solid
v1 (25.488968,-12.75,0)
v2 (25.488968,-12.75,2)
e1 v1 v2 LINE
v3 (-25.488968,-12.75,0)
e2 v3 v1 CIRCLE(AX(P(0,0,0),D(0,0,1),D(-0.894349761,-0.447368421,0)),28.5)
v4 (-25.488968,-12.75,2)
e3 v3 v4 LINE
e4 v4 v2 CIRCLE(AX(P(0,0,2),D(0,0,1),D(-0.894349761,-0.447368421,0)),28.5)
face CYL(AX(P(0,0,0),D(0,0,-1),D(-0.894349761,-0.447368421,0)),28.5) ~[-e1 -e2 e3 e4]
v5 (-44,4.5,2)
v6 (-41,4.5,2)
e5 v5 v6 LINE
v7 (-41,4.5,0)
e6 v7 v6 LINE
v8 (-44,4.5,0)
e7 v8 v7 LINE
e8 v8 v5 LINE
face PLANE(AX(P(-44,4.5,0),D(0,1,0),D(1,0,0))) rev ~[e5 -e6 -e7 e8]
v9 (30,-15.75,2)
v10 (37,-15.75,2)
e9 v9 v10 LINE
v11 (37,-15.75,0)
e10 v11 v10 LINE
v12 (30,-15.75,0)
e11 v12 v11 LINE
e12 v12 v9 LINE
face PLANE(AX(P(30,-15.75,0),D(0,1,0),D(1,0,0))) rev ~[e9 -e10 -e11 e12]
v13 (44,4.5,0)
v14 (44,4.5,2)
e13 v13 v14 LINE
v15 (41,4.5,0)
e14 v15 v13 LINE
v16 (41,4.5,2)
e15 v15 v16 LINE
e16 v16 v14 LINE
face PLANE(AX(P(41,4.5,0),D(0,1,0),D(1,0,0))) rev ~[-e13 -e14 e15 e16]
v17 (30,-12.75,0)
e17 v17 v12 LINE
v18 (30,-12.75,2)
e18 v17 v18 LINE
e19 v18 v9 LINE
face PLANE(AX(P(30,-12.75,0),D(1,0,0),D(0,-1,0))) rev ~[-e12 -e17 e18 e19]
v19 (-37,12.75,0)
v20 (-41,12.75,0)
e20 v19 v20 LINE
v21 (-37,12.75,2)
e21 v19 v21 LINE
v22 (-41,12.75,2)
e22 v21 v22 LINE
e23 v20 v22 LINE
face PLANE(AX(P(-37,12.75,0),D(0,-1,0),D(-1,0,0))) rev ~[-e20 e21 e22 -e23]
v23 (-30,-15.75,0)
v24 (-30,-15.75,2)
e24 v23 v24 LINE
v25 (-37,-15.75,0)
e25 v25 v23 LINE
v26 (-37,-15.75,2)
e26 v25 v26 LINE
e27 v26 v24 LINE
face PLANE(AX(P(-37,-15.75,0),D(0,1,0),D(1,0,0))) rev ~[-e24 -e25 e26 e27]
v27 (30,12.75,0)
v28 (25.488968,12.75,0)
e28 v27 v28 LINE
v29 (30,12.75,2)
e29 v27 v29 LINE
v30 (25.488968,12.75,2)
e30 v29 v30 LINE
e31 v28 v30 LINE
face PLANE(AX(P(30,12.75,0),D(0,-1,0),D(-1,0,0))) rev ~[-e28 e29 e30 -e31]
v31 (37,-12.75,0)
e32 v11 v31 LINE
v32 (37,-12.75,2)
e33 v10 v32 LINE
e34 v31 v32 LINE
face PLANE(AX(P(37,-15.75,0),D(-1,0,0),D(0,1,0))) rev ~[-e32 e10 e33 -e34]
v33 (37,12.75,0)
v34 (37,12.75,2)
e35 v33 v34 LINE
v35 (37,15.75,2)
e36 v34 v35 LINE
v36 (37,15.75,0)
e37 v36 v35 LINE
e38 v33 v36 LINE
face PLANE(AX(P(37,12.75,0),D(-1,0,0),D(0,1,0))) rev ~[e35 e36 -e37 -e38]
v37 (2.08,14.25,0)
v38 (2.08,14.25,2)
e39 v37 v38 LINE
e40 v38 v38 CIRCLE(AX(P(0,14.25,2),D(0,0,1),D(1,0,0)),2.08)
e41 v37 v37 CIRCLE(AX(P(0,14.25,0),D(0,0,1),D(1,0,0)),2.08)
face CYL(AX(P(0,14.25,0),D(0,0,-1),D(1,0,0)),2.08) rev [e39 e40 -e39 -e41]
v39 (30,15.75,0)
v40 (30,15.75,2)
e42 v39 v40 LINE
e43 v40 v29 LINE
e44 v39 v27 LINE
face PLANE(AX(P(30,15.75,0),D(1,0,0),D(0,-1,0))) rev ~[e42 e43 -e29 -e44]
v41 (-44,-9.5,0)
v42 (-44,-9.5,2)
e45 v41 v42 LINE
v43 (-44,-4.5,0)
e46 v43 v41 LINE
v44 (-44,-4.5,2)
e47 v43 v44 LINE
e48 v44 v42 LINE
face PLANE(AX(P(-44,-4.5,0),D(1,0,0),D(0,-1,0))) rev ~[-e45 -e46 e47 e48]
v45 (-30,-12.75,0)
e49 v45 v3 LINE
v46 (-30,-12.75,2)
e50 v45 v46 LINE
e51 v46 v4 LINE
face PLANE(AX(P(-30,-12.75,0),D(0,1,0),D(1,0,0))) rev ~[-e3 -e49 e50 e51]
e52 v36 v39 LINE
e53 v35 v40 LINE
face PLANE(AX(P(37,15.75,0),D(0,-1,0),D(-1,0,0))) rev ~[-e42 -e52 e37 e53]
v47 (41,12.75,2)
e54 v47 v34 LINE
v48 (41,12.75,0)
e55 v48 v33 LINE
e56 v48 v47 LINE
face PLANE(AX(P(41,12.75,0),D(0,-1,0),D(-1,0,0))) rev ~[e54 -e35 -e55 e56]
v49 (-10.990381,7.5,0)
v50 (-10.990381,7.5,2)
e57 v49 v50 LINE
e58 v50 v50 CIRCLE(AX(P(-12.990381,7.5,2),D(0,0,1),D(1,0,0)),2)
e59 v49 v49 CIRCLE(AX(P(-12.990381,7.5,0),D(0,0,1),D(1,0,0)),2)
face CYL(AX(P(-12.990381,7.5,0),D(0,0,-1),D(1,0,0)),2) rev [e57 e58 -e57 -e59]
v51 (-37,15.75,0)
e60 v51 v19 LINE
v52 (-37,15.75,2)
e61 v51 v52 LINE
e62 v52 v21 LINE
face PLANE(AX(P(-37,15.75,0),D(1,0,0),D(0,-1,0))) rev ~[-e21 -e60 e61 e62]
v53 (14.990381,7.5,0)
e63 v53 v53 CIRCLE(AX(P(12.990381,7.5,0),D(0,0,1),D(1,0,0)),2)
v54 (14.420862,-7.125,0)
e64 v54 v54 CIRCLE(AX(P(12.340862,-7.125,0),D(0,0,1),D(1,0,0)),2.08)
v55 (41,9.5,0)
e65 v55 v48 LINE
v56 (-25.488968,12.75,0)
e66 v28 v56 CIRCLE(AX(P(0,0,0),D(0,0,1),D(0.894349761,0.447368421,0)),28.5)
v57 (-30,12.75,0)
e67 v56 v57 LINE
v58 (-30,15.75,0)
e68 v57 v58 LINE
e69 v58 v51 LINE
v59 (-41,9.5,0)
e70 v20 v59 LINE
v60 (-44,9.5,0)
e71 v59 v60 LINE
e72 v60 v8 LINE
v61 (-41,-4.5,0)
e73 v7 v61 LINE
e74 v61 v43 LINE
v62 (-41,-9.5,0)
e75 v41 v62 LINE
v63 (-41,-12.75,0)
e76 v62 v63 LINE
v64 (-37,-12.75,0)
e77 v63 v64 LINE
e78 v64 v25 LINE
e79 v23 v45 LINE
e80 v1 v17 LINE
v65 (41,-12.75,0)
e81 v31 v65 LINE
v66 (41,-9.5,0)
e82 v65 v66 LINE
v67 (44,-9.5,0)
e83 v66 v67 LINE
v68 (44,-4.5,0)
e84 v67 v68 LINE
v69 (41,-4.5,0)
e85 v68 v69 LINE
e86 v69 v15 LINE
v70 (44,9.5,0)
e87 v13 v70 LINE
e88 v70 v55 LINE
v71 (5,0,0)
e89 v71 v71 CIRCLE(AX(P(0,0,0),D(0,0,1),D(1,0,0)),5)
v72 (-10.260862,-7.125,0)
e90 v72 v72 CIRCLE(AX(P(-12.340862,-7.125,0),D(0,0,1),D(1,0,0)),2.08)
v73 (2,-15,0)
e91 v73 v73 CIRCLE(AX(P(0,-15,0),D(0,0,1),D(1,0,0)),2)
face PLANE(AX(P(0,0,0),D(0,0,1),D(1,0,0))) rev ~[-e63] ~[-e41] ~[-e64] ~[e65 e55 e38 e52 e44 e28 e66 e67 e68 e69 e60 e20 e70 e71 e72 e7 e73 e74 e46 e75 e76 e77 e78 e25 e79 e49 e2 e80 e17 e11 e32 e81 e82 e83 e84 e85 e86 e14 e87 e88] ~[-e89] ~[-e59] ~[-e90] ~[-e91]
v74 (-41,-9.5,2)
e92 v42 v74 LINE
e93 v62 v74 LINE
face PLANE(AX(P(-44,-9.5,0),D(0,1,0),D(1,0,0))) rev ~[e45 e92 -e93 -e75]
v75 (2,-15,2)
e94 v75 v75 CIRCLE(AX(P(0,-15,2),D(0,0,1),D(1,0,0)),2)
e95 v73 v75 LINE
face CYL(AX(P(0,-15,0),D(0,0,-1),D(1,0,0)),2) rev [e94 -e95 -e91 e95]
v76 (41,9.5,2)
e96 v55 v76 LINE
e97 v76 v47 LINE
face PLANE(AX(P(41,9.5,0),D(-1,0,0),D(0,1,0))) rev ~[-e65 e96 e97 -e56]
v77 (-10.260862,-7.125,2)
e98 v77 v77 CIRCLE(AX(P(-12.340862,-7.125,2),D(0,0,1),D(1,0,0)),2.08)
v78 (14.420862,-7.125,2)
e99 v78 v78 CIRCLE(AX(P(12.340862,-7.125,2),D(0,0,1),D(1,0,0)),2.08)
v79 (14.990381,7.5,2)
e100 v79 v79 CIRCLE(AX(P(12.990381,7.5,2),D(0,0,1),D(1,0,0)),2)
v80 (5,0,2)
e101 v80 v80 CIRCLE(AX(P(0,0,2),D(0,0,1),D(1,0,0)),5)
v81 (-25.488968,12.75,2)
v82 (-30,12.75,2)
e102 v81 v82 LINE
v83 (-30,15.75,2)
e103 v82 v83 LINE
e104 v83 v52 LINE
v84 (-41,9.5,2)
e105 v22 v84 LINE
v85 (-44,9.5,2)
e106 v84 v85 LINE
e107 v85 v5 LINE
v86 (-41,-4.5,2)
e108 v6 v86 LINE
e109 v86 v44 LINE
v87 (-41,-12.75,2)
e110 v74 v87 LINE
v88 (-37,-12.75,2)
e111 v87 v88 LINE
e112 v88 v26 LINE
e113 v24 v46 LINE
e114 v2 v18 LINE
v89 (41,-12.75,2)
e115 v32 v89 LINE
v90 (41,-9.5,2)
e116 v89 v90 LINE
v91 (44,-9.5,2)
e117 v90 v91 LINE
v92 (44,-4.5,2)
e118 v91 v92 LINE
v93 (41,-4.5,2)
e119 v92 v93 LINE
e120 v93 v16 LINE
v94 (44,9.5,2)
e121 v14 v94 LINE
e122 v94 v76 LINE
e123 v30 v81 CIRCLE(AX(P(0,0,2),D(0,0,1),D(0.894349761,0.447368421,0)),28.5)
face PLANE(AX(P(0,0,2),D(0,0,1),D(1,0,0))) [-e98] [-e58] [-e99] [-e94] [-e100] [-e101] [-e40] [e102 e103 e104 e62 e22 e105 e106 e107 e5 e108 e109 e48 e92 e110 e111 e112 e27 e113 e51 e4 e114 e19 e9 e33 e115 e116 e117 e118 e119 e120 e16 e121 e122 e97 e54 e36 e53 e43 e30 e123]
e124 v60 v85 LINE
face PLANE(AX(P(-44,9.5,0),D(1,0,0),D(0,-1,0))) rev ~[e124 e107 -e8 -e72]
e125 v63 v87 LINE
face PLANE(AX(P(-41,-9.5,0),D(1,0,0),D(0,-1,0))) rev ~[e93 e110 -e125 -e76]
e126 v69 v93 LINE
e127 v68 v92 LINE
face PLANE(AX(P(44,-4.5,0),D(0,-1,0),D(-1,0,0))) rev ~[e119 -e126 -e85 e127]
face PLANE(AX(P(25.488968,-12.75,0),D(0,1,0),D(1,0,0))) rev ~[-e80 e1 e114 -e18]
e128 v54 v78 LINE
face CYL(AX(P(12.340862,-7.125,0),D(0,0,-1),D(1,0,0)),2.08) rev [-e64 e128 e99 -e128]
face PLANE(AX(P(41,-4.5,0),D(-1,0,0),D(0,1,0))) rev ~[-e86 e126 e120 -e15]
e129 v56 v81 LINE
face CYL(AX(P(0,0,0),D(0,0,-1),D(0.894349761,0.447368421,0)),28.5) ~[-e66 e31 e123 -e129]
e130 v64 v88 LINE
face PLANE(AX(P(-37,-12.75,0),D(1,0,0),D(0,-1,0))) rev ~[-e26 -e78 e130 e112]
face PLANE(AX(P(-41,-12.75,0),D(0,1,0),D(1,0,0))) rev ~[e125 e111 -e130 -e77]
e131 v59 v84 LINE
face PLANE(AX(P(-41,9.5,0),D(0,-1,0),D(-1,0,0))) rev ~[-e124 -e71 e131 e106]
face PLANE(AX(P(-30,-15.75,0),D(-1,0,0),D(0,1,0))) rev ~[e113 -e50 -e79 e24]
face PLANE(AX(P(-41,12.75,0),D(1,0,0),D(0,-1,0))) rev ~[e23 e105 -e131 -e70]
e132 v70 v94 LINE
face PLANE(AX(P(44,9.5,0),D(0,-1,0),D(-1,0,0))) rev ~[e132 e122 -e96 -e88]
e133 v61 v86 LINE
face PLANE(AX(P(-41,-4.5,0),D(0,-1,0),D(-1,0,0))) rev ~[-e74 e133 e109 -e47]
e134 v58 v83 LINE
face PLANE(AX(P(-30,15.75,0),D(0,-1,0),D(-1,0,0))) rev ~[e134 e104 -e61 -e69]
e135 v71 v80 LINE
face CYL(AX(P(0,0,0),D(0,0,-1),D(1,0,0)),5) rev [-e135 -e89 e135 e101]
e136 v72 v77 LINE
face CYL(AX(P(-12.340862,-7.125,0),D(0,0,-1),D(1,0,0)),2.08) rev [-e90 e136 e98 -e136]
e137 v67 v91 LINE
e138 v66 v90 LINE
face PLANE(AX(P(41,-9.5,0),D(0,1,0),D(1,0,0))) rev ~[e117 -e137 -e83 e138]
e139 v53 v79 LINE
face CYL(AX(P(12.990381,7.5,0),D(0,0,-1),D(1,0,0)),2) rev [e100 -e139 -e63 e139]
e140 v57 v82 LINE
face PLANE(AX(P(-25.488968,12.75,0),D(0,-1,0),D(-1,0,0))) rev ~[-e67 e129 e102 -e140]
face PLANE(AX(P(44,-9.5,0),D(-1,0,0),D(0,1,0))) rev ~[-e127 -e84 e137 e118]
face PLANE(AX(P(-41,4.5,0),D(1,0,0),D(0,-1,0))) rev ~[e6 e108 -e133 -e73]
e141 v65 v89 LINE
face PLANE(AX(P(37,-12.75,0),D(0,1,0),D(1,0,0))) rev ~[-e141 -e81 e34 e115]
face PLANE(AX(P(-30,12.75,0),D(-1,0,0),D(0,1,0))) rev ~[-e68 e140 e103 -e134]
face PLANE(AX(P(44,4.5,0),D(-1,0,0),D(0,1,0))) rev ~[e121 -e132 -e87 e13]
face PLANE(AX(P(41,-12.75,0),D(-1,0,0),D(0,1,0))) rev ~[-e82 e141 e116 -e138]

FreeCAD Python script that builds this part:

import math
import FreeCAD as App
import Part
import Sketcher

V = App.Vector
Q = App.Units.Quantity

doc = App.newDocument("Part")
body = doc.addObject("PartDesign::Body", "Body")

# Sketch on XY plane
sketch1 = body.newObject("Sketcher::SketchObject", "Sketch")
sketch1.AttachmentSupport = (doc.getObject("XY_Plane"), [""])
sketch1.MapMode = "FlatFace"
sketch1.addGeometry([
    Part.LineSegment(V(-41, -12.8, 0), V(-37, -12.8, 0)),  # 0
    Part.LineSegment(V(-37, -12.8, 0), V(-37, -15.8, 0)),  # 1
    Part.LineSegment(V(-37, -15.8, 0), V(-30, -15.8, 0)),  # 2
    Part.LineSegment(V(-30, -15.8, 0), V(-30, -12.8, 0)),  # 3
    Part.LineSegment(V(-30, -12.8, 0), V(-25.5, -12.8, 0)),  # 4
    Part.ArcOfCircle(Part.Circle(V(0, 0, 0), V(0, 0, 1), 28.5), math.radians(-153), math.radians(-27)),  # 5
    Part.LineSegment(V(25.5, -12.8, 0), V(30, -12.8, 0)),  # 6
    Part.LineSegment(V(30, -12.8, 0), V(30, -15.8, 0)),  # 7
    Part.LineSegment(V(30, -15.8, 0), V(37, -15.8, 0)),  # 8
    Part.LineSegment(V(37, -15.8, 0), V(37, -12.8, 0)),  # 9
    Part.LineSegment(V(37, -12.8, 0), V(41, -12.8, 0)),  # 10
    Part.LineSegment(V(41, -12.8, 0), V(41, -9.5, 0)),  # 11
    Part.LineSegment(V(41, -9.5, 0), V(44, -9.5, 0)),  # 12
    Part.LineSegment(V(44, -9.5, 0), V(44, -4.5, 0)),  # 13
    Part.LineSegment(V(44, -4.5, 0), V(41, -4.5, 0)),  # 14
    Part.LineSegment(V(41, -4.5, 0), V(41, 4.5, 0)),  # 15
    Part.LineSegment(V(41, 4.5, 0), V(44, 4.5, 0)),  # 16
    Part.LineSegment(V(44, 4.5, 0), V(44, 9.5, 0)),  # 17
    Part.LineSegment(V(44, 9.5, 0), V(41, 9.5, 0)),  # 18
    Part.LineSegment(V(41, 9.5, 0), V(41, 12.8, 0)),  # 19
    Part.LineSegment(V(41, 12.8, 0), V(37, 12.8, 0)),  # 20
    Part.LineSegment(V(37, 12.8, 0), V(37, 15.8, 0)),  # 21
    Part.LineSegment(V(37, 15.8, 0), V(30, 15.8, 0)),  # 22
    Part.LineSegment(V(30, 15.8, 0), V(30, 12.8, 0)),  # 23
    Part.LineSegment(V(30, 12.8, 0), V(25.5, 12.8, 0)),  # 24
    Part.ArcOfCircle(Part.Circle(V(0, 0, 0), V(0, 0, 1), 28.5), math.radians(27), math.radians(153)),  # 25
    Part.LineSegment(V(-25.5, 12.8, 0), V(-30, 12.8, 0)),  # 26
    Part.LineSegment(V(-30, 12.8, 0), V(-30, 15.8, 0)),  # 27
    Part.LineSegment(V(-30, 15.8, 0), V(-37, 15.8, 0)),  # 28
    Part.LineSegment(V(-37, 15.8, 0), V(-37, 12.8, 0)),  # 29
    Part.LineSegment(V(-37, 12.8, 0), V(-41, 12.8, 0)),  # 30
    Part.LineSegment(V(-41, 12.8, 0), V(-41, 9.5, 0)),  # 31
    Part.LineSegment(V(-41, 9.5, 0), V(-44, 9.5, 0)),  # 32
    Part.LineSegment(V(-44, 9.5, 0), V(-44, 4.5, 0)),  # 33
    Part.LineSegment(V(-44, 4.5, 0), V(-41, 4.5, 0)),  # 34
    Part.LineSegment(V(-41, 4.5, 0), V(-41, -4.5, 0)),  # 35
    Part.LineSegment(V(-41, -4.5, 0), V(-44, -4.5, 0)),  # 36
    Part.LineSegment(V(-44, -4.5, 0), V(-44, -9.5, 0)),  # 37
    Part.LineSegment(V(-44, -9.5, 0), V(-41, -9.5, 0)),  # 38
    Part.LineSegment(V(-41, -9.5, 0), V(-41, -12.8, 0)),  # 39
    Part.Circle(V(-12.3, -7.1, 0), V(0, 0, 1), 2.1),  # 40
    Part.Circle(V(0, -15, 0), V(0, 0, 1), 2),  # 41
    Part.Circle(V(12.3, -7.1, 0), V(0, 0, 1), 2.1),  # 42
    Part.Circle(V(-13, 7.5, 0), V(0, 0, 1), 2),  # 43
    Part.Circle(V(0, 0, 0), V(0, 0, 1), 5),  # 44
    Part.Circle(V(13, 7.5, 0), V(0, 0, 1), 2),  # 45
    Part.Circle(V(0, 14.2, 0), V(0, 0, 1), 2.1),  # 46
], False)
sketch1.addConstraint([
    Sketcher.Constraint("Coincident", 0, 2, 1, 1),
    Sketcher.Constraint("Coincident", 1, 2, 2, 1),
    Sketcher.Constraint("Coincident", 2, 2, 3, 1),
    Sketcher.Constraint("Coincident", 3, 2, 4, 1),
    Sketcher.Constraint("Coincident", 4, 2, 5, 1),
    Sketcher.Constraint("Coincident", 5, 2, 6, 1),
    Sketcher.Constraint("Coincident", 6, 2, 7, 1),
    Sketcher.Constraint("Coincident", 7, 2, 8, 1),
    Sketcher.Constraint("Coincident", 8, 2, 9, 1),
    Sketcher.Constraint("Coincident", 9, 2, 10, 1),
    Sketcher.Constraint("Coincident", 10, 2, 11, 1),
    Sketcher.Constraint("Coincident", 11, 2, 12, 1),
    Sketcher.Constraint("Coincident", 12, 2, 13, 1),
    Sketcher.Constraint("Coincident", 13, 2, 14, 1),
    Sketcher.Constraint("Coincident", 14, 2, 15, 1),
    Sketcher.Constraint("Coincident", 15, 2, 16, 1),
    Sketcher.Constraint("Coincident", 16, 2, 17, 1),
    Sketcher.Constraint("Coincident", 17, 2, 18, 1),
    Sketcher.Constraint("Coincident", 18, 2, 19, 1),
    Sketcher.Constraint("Coincident", 19, 2, 20, 1),
    Sketcher.Constraint("Coincident", 20, 2, 21, 1),
    Sketcher.Constraint("Coincident", 21, 2, 22, 1),
    Sketcher.Constraint("Coincident", 22, 2, 23, 1),
    Sketcher.Constraint("Coincident", 23, 2, 24, 1),
    Sketcher.Constraint("Coincident", 24, 2, 25, 1),
    Sketcher.Constraint("Coincident", 25, 2, 26, 1),
    Sketcher.Constraint("Coincident", 26, 2, 27, 1),
    Sketcher.Constraint("Coincident", 27, 2, 28, 1),
    Sketcher.Constraint("Coincident", 28, 2, 29, 1),
    Sketcher.Constraint("Coincident", 29, 2, 30, 1),
    Sketcher.Constraint("Coincident", 30, 2, 31, 1),
    Sketcher.Constraint("Coincident", 31, 2, 32, 1),
    Sketcher.Constraint("Coincident", 32, 2, 33, 1),
    Sketcher.Constraint("Coincident", 33, 2, 34, 1),
    Sketcher.Constraint("Coincident", 34, 2, 35, 1),
    Sketcher.Constraint("Coincident", 35, 2, 36, 1),
    Sketcher.Constraint("Coincident", 36, 2, 37, 1),
    Sketcher.Constraint("Coincident", 37, 2, 38, 1),
    Sketcher.Constraint("Coincident", 38, 2, 39, 1),
    Sketcher.Constraint("Coincident", 39, 2, 0, 1),
    Sketcher.Constraint("Horizontal", 0),
    Sketcher.Constraint("Vertical", 1),
    Sketcher.Constraint("Horizontal", 2),
    Sketcher.Constraint("Vertical", 3),
    Sketcher.Constraint("Horizontal", 4),
    Sketcher.Constraint("Horizontal", 6),
    Sketcher.Constraint("Vertical", 7),
    Sketcher.Constraint("Horizontal", 8),
    Sketcher.Constraint("Vertical", 9),
    Sketcher.Constraint("Horizontal", 10),
    Sketcher.Constraint("Vertical", 11),
    Sketcher.Constraint("Horizontal", 12),
    Sketcher.Constraint("Vertical", 13),
    Sketcher.Constraint("Horizontal", 14),
    Sketcher.Constraint("Vertical", 15),
    Sketcher.Constraint("Horizontal", 16),
    Sketcher.Constraint("Vertical", 17),
    Sketcher.Constraint("Horizontal", 18),
    Sketcher.Constraint("Vertical", 19),
    Sketcher.Constraint("Horizontal", 20),
    Sketcher.Constraint("Vertical", 21),
    Sketcher.Constraint("Horizontal", 22),
    Sketcher.Constraint("Vertical", 23),
    Sketcher.Constraint("Horizontal", 24),
    Sketcher.Constraint("Horizontal", 26),
    Sketcher.Constraint("Vertical", 27),
    Sketcher.Constraint("Horizontal", 28),
    Sketcher.Constraint("Vertical", 29),
    Sketcher.Constraint("Horizontal", 30),
    Sketcher.Constraint("Vertical", 31),
    Sketcher.Constraint("Horizontal", 32),
    Sketcher.Constraint("Vertical", 33),
    Sketcher.Constraint("Horizontal", 34),
    Sketcher.Constraint("Vertical", 35),
    Sketcher.Constraint("Horizontal", 36),
    Sketcher.Constraint("Vertical", 37),
    Sketcher.Constraint("Horizontal", 38),
    Sketcher.Constraint("Vertical", 39),
    Sketcher.Constraint("Coincident", 5, 3, -1, 1),
    Sketcher.Constraint("Coincident", 25, 3, -1, 1),
    Sketcher.Constraint("Coincident", 44, 3, -1, 1),
    Sketcher.Constraint("Equal", 5, 25),
    Sketcher.Constraint("Equal", 40, 42),
    Sketcher.Constraint("Equal", 41, 43),
    Sketcher.Constraint("Equal", 43, 45),
    Sketcher.Constraint("Equal", 42, 46),
    Sketcher.Constraint("Symmetric", 0, 2, 20, 2, -1, 1),
    Sketcher.Constraint("Symmetric", 2, 2, 22, 2, -1, 1),
    Sketcher.Constraint("Symmetric", 6, 2, 26, 2, -1, 1),
    Sketcher.Constraint("Symmetric", 8, 2, 28, 2, -1, 1),
    Sketcher.Constraint("Symmetric", 10, 2, 30, 2, -1, 1),
    Sketcher.Constraint("Symmetric", 12, 2, 32, 2, -1, 1),
    Sketcher.Constraint("Symmetric", 14, 2, 34, 2, -1, 1),
    Sketcher.Constraint("Symmetric", 16, 2, 36, 2, -1, 1),
    Sketcher.Constraint("Symmetric", 18, 2, 38, 2, -1, 1),
    Sketcher.Constraint("Symmetric", 40, 3, 42, 3, -2),
    Sketcher.Constraint("Symmetric", 43, 3, 45, 3, -2),
    Sketcher.Constraint("Symmetric", 3, 2, 6, 2, -2),
    Sketcher.Constraint("Symmetric", 1, 2, 8, 2, -2),
    Sketcher.Constraint("Symmetric", 19, 2, 30, 2, -2),
    Sketcher.Constraint("Symmetric", 17, 2, 32, 2, -2),
    Sketcher.Constraint("PointOnObject", 41, 3, -2),
    Sketcher.Constraint("PointOnObject", 46, 3, -2),
    Sketcher.Constraint("Horizontal", 0, 2, 3, 2),
    Sketcher.Constraint("Horizontal", 20, 2, 23, 2),
    Sketcher.Constraint("Horizontal", 16, 2, 33, 2),
    Sketcher.Constraint("Vertical", 11, 2, 14, 2),
    Sketcher.Constraint("Equal", 38, 1),
    Sketcher.Constraint("Diameter", 41, Q("4 mm")),
    Sketcher.Constraint("Diameter", 44, Q("10 mm")),
    Sketcher.Constraint("Radius", 5, Q("28.5 mm")),
    Sketcher.Constraint("Diameter", 40, Q("4.16 mm")),
    Sketcher.Constraint("DistanceX", 0, 1, 0, 2, Q("4 mm")),
    Sketcher.Constraint("DistanceX", 2, 1, 2, 2, Q("7 mm")),
    Sketcher.Constraint("DistanceX", 12, 1, 12, 2, Q("3 mm")),
    Sketcher.Constraint("DistanceY", 13, 1, 13, 2, Q("5 mm")),
    Sketcher.Constraint("DistanceY", 15, 1, 15, 2, Q("9 mm")),
    Sketcher.Constraint("DistanceY", 41, 3, -1, 1, Q("15 mm")),
    Sketcher.Constraint("DistanceX", 0, 2, -1, 1, Q("37 mm")),
    Sketcher.Constraint("DistanceY", 11, 1, 11, 2, Q("3.25 mm")),
    Sketcher.Constraint("DistanceY", -1, 1, 43, 3, Q("7.5 mm")),
    Sketcher.Constraint("DistanceY", 25, 2, 46, 3, Q("1.5 mm")),
    Sketcher.Constraint("DistanceY", 40, 3, -1, 1, Q("7.125 mm")),
    Sketcher.Constraint("DistanceX", 43, 3, -1, 1, Q("12.990381 mm")),
    Sketcher.Constraint("DistanceX", 43, 3, 40, 3, Q("0.649519 mm")),
])
pad1 = body.newObject("PartDesign::Pad", "Pad")
pad1.Profile = sketch1
pad1.Length = 2

doc.recompute()
